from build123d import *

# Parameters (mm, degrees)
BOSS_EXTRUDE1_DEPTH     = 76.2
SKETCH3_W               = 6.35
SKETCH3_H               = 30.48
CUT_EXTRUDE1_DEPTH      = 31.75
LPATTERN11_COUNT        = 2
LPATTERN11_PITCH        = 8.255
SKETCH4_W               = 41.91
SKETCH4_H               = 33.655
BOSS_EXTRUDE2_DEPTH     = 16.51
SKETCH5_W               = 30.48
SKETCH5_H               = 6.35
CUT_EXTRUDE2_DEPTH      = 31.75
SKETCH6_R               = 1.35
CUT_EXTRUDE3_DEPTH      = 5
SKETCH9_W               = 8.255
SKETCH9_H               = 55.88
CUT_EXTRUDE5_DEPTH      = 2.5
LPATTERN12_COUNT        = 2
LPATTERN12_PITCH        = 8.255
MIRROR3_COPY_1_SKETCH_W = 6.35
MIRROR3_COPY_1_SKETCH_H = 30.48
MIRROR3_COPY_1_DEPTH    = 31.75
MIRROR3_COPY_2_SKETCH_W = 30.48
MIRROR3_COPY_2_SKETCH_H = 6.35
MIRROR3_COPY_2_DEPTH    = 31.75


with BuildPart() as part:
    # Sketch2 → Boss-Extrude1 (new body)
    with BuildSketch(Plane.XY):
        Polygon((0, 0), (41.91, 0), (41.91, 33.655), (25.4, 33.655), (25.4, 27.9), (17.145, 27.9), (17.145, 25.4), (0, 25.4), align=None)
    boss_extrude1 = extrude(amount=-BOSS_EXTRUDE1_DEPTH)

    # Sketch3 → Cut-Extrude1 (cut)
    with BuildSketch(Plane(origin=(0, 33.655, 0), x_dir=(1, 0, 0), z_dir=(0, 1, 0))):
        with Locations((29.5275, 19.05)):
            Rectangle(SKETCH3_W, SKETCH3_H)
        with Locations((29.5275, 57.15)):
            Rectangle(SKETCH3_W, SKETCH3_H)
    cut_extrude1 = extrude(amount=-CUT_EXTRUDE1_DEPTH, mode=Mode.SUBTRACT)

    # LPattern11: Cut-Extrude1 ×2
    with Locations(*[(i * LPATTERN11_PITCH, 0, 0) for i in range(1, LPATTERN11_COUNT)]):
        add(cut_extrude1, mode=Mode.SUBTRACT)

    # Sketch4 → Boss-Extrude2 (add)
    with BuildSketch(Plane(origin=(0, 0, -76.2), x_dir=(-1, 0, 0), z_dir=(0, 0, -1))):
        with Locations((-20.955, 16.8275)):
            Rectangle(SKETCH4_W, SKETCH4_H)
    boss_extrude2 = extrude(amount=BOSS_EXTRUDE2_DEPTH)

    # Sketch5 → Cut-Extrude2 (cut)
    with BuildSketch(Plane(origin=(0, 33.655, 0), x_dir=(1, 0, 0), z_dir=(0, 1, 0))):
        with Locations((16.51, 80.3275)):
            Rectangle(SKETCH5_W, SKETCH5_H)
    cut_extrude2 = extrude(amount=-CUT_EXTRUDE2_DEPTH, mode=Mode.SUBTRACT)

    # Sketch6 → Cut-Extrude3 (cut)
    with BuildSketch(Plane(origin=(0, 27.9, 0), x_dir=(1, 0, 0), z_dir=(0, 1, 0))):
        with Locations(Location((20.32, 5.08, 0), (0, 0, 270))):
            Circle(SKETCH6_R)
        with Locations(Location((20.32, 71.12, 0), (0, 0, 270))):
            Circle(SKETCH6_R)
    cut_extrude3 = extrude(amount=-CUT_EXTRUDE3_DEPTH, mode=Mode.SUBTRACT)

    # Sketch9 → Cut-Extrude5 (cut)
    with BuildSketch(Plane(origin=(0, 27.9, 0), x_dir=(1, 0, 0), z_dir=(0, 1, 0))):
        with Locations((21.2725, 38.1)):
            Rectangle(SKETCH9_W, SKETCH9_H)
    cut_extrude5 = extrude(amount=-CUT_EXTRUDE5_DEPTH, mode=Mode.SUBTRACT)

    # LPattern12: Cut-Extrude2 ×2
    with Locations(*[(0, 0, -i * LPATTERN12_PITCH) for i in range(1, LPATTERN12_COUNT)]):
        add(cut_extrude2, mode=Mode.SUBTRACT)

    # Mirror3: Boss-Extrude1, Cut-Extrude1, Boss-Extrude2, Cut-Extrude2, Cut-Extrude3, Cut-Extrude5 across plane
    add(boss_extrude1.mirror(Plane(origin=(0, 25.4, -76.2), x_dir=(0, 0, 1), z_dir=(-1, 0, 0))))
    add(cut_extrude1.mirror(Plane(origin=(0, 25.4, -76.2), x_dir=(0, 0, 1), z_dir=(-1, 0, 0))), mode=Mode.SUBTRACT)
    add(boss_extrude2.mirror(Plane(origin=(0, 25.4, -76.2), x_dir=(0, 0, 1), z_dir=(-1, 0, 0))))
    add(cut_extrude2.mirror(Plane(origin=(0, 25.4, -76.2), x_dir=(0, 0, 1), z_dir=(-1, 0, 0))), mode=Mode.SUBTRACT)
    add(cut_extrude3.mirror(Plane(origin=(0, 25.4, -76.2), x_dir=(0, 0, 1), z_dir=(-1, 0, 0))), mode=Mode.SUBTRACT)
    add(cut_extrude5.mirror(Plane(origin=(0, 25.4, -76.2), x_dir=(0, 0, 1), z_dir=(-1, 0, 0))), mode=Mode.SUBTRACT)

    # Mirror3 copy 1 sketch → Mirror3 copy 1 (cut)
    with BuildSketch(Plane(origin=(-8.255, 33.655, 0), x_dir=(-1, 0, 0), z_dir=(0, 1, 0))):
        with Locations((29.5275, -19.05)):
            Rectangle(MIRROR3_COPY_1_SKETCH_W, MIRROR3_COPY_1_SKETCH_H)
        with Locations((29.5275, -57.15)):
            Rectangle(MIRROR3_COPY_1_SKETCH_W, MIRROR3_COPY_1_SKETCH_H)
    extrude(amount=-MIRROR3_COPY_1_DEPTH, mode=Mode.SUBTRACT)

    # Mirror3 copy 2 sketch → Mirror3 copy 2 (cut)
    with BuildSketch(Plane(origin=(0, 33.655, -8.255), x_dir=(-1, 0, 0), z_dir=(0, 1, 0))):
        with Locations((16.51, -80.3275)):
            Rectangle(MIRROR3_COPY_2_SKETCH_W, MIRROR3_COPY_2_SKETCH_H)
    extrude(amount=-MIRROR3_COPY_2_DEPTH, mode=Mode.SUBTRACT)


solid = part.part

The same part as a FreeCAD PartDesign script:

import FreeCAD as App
import Part
import Sketcher
Q = App.Units.Quantity

doc = App.newDocument("Part")
body = doc.addObject("PartDesign::Body", "Body")

sketch1 = body.newObject("Sketcher::SketchObject", "Sketch")
sketch1.AttachmentSupport = (doc.getObject("XY_Plane"), [""])
sketch1.MapMode = "FlatFace"
sketch1.addGeometry([
    Part.LineSegment(App.Vector(0, 0, 0), App.Vector(41.9, 0, 0)),
    Part.LineSegment(App.Vector(41.9, 0, 0), App.Vector(41.9, 33.7, 0)),
    Part.LineSegment(App.Vector(41.9, 33.7, 0), App.Vector(25.4, 33.7, 0)),
    Part.LineSegment(App.Vector(25.4, 33.7, 0), App.Vector(25.4, 27.9, 0)),
    Part.LineSegment(App.Vector(25.4, 27.9, 0), App.Vector(17.1, 27.9, 0)),
    Part.LineSegment(App.Vector(17.1, 27.9, 0), App.Vector(17.1, 25.4, 0)),
    Part.LineSegment(App.Vector(17.1, 25.4, 0), App.Vector(0, 25.4, 0)),
    Part.LineSegment(App.Vector(0, 25.4, 0), App.Vector(0, 0, 0)),
], False)
sketch1.addConstraint([
    Sketcher.Constraint("Coincident", 0, 2, 1, 1),
    Sketcher.Constraint("Coincident", 1, 2, 2, 1),
    Sketcher.Constraint("Coincident", 2, 2, 3, 1),
    Sketcher.Constraint("Coincident", 3, 2, 4, 1),
    Sketcher.Constraint("Coincident", 4, 2, 5, 1),
    Sketcher.Constraint("Coincident", 5, 2, 6, 1),
    Sketcher.Constraint("Coincident", 6, 2, 7, 1),
    Sketcher.Constraint("Coincident", 7, 2, 0, 1),
    Sketcher.Constraint("Horizontal", 0),
    Sketcher.Constraint("Vertical", 1),
    Sketcher.Constraint("Horizontal", 2),
    Sketcher.Constraint("Vertical", 3),
    Sketcher.Constraint("Horizontal", 4),
    Sketcher.Constraint("Vertical", 5),
    Sketcher.Constraint("Horizontal", 6),
    Sketcher.Constraint("Vertical", 7),
    Sketcher.Constraint("Coincident", 7, 2, -1, 1),
    Sketcher.Constraint("DistanceY", 7, 2, 7, 1, Q("1 in")),
    Sketcher.Constraint("DistanceX", -1, 1, 2, 2, Q("1 in")),
    Sketcher.Constraint("DistanceX", 0, 1, 0, 2, Q("1.65 in")),
    Sketcher.Constraint("DistanceX", 4, 2, 4, 1, Q("0.325 in")),
    Sketcher.Constraint("DistanceY", 1, 1, 1, 2, Q("1.325 in")),
    Sketcher.Constraint("DistanceY", 3, 2, 3, 1, Q("5.755 mm")),
])
pad1 = body.newObject("PartDesign::Pad", "Pad")
pad1.Profile = sketch1
pad1.Length = Q("3 in")
pad1.Reversed = True

sketch2 = body.newObject("Sketcher::SketchObject", "Sketch001")
sketch2.AttachmentSupport = (doc.getObject("XZ_Plane"), [""])
sketch2.MapMode = "FlatFace"
sketch2.AttachmentOffset = App.Placement(App.Vector(0, 0, -1.325 * 25.4), App.Rotation())
sketch2.addGeometry([
    Part.LineSegment(App.Vector(26, -34, 0), App.Vector(26, -4, 0)),
    Part.LineSegment(App.Vector(26, -4, 0), App.Vector(33, -4, 0)),
    Part.LineSegment(App.Vector(33, -4, 0), App.Vector(33, -34, 0)),
    Part.LineSegment(App.Vector(33, -34, 0), App.Vector(26, -34, 0)),
    Part.LineSegment(App.Vector(26, -72, 0), App.Vector(26, -42, 0)),
    Part.LineSegment(App.Vector(26, -42, 0), App.Vector(33, -42, 0)),
    Part.LineSegment(App.Vector(33, -42, 0), App.Vector(33, -72, 0)),
    Part.LineSegment(App.Vector(33, -72, 0), App.Vector(26, -72, 0)),
], False)
sketch2.addConstraint([
    Sketcher.Constraint("Coincident", 0, 2, 1, 1),
    Sketcher.Constraint("Coincident", 1, 2, 2, 1),
    Sketcher.Constraint("Coincident", 2, 2, 3, 1),
    Sketcher.Constraint("Coincident", 3, 2, 0, 1),
    Sketcher.Constraint("Coincident", 4, 2, 5, 1),
    Sketcher.Constraint("Coincident", 5, 2, 6, 1),
    Sketcher.Constraint("Coincident", 6, 2, 7, 1),
    Sketcher.Constraint("Coincident", 7, 2, 4, 1),
    Sketcher.Constraint("Vertical", 0),
    Sketcher.Constraint("Horizontal", 1),
    Sketcher.Constraint("Vertical", 2),
    Sketcher.Constraint("Horizontal", 3),
    Sketcher.Constraint("Vertical", 4),
    Sketcher.Constraint("Horizontal", 5),
    Sketcher.Constraint("Vertical", 6),
    Sketcher.Constraint("Horizontal", 7),
    Sketcher.Constraint("Vertical", 3, 2, 4, 2),
    Sketcher.Constraint("Vertical", 2, 2, 5, 2),
    Sketcher.Constraint("Equal", 2, 4),
    Sketcher.Constraint("DistanceY", 0, 1, 0, 2, Q("1.2 in")),
    Sketcher.Constraint("DistanceX", 1, 1, 1, 2, Q("0.25 in")),
    Sketcher.Constraint("DistanceY", 4, 2, 3, 2, Q("0.3 in")),
    Sketcher.Constraint("DistanceY", 0, 2, -1, 1, Q("0.15 in")),
    Sketcher.Constraint("DistanceX", -1, 1, 0, 2, Q("1.0375 in")),
])
pocket1 = body.newObject("PartDesign::Pocket", "Pocket")
pocket1.Profile = sketch2
pocket1.Length = Q("1.25 in")
pocket1.Reversed = True
doc.recompute()

linearpattern = body.newObject("PartDesign::LinearPattern", "LinearPattern")
linearpattern.Originals = [pocket1]
linearpattern.Direction = (doc.getObject("X_Axis"), [""])
linearpattern.Mode = "offset"
linearpattern.Offset = Q("0.325 in")
linearpattern.Occurrences = 2
body.Tip = linearpattern

sketch3 = body.newObject("Sketcher::SketchObject", "Sketch002")
sketch3.AttachmentSupport = (doc.getObject("XY_Plane"), [""])
sketch3.MapMode = "FlatFace"
sketch3.AttachmentOffset = App.Placement(App.Vector(0, 0, -3 * 25.4), App.Rotation())
sketch3.addGeometry([
    Part.LineSegment(App.Vector(42, 34, 0), App.Vector(42, 0, 0)),
    Part.LineSegment(App.Vector(42, 0, 0), App.Vector(0, 0, 0)),
    Part.LineSegment(App.Vector(0, 0, 0), App.Vector(0, 34, 0)),
    Part.LineSegment(App.Vector(0, 34, 0), App.Vector(42, 34, 0)),
], False)
sketch3.addConstraint([
    Sketcher.Constraint("Coincident", 0, 2, 1, 1),
    Sketcher.Constraint("Coincident", 1, 2, 2, 1),
    Sketcher.Constraint("Coincident", 2, 2, 3, 1),
    Sketcher.Constraint("Coincident", 3, 2, 0, 1),
    Sketcher.Constraint("Vertical", 0),
    Sketcher.Constraint("Horizontal", 1),
    Sketcher.Constraint("Vertical", 2),
    Sketcher.Constraint("Horizontal", 3),
    Sketcher.Constraint("Coincident", 1, 2, -1, 1),
    Sketcher.Constraint("DistanceX", 1, 2, 1, 1, Q("1.65 in")),
    Sketcher.Constraint("DistanceY", 0, 2, 0, 1, Q("1.325 in")),
])
pad2 = body.newObject("PartDesign::Pad", "Pad001")
pad2.Profile = sketch3
pad2.Length = Q("0.65 in")
pad2.Reversed = True

sketch4 = body.newObject("Sketcher::SketchObject", "Sketch003")
sketch4.AttachmentSupport = (doc.getObject("XZ_Plane"), [""])
sketch4.MapMode = "FlatFace"
sketch4.AttachmentOffset = App.Placement(App.Vector(0, 0, -1.325 * 25.4), App.Rotation())
sketch4.addGeometry([
    Part.LineSegment(App.Vector(1, -84, 0), App.Vector(1, -77, 0)),
    Part.LineSegment(App.Vector(1, -77, 0), App.Vector(32, -77, 0)),
    Part.LineSegment(App.Vector(32, -77, 0), App.Vector(32, -84, 0)),
    Part.LineSegment(App.Vector(32, -84, 0), App.Vector(1, -84, 0)),
], False)
sketch4.addConstraint([
    Sketcher.Constraint("Coincident", 0, 2, 1, 1),
    Sketcher.Constraint("Coincident", 1, 2, 2, 1),
    Sketcher.Constraint("Coincident", 2, 2, 3, 1),
    Sketcher.Constraint("Coincident", 3, 2, 0, 1),
    Sketcher.Constraint("Vertical", 0),
    Sketcher.Constraint("Horizontal", 1),
    Sketcher.Constraint("Vertical", 2),
    Sketcher.Constraint("Horizontal", 3),
    Sketcher.Constraint("DistanceX", 1, 1, 1, 2, Q("1.2 in")),
    Sketcher.Constraint("DistanceY", 0, 1, 0, 2, Q("0.25 in")),
    Sketcher.Constraint("DistanceX", -1, 1, 0, 2, Q("0.05 in")),
    Sketcher.Constraint("DistanceY", 0, 2, -1, 1, Q("3.0375 in")),
])
pocket2 = body.newObject("PartDesign::Pocket", "Pocket001")
pocket2.Profile = sketch4
pocket2.Length = Q("1.25 in")
pocket2.Reversed = True

sketch5 = body.newObject("Sketcher::SketchObject", "Sketch004")
sketch5.AttachmentSupport = (doc.getObject("XZ_Plane"), [""])
sketch5.MapMode = "FlatFace"
sketch5.AttachmentOffset = App.Placement(App.Vector(0, 0, -27.9), App.Rotation())
sketch5.addGeometry([
    Part.Circle(App.Vector(20.3, -5.1, 0), App.Vector(0, 0, 1), 1.4),
    Part.Circle(App.Vector(20.3, -71.1, 0), App.Vector(0, 0, 1), 1.4),
], False)
sketch5.addConstraint([
    Sketcher.Constraint("Equal", 0, 1),
    Sketcher.Constraint("Vertical", 0, 3, 1, 3),
    Sketcher.Constraint("DistanceX", -1, 1, 0, 3, Q("0.8 in")),
    Sketcher.Constraint("DistanceY", 0, 3, -1, 1, Q("0.2 in")),
    Sketcher.Constraint("DistanceY", 1, 3, -1, 1, Q("2.8 in")),
    Sketcher.Constraint("Diameter", 0, Q("2.7 mm")),
])
pocket3 = body.newObject("PartDesign::Pocket", "Pocket002")
pocket3.Profile = sketch5
pocket3.Length = 5
pocket3.Reversed = True

sketch6 = body.newObject("Sketcher::SketchObject", "Sketch005")
sketch6.AttachmentSupport = (doc.getObject("XZ_Plane"), [""])
sketch6.MapMode = "FlatFace"
sketch6.AttachmentOffset = App.Placement(App.Vector(0, 0, -27.9), App.Rotation())
sketch6.addGeometry([
    Part.LineSegment(App.Vector(17, -66, 0), App.Vector(17, -10, 0)),
    Part.LineSegment(App.Vector(17, -10, 0), App.Vector(25, -10, 0)),
    Part.LineSegment(App.Vector(25, -10, 0), App.Vector(25, -66, 0)),
    Part.LineSegment(App.Vector(25, -66, 0), App.Vector(17, -66, 0)),
], False)
sketch6.addConstraint([
    Sketcher.Constraint("Coincident", 0, 2, 1, 1),
    Sketcher.Constraint("Coincident", 1, 2, 2, 1),
    Sketcher.Constraint("Coincident", 2, 2, 3, 1),
    Sketcher.Constraint("Coincident", 3, 2, 0, 1),
    Sketcher.Constraint("Vertical", 0),
    Sketcher.Constraint("Horizontal", 1),
    Sketcher.Constraint("Vertical", 2),
    Sketcher.Constraint("Horizontal", 3),
    Sketcher.Constraint("DistanceY", 0, 1, 0, 2, Q("2.2 in")),
    Sketcher.Constraint("DistanceX", -1, 1, 1, 2, Q("1 in")),
    Sketcher.Constraint("DistanceY", 0, 2, -1, 1, Q("0.4 in")),
    Sketcher.Constraint("DistanceX", 1, 1, 1, 2, Q("0.325 in")),
])
pocket4 = body.newObject("PartDesign::Pocket", "Pocket003")
pocket4.Profile = sketch6
pocket4.Length = 2.5
pocket4.Reversed = True
doc.recompute()

linearpattern2 = body.newObject("PartDesign::LinearPattern", "LinearPattern001")
linearpattern2.Originals = [pocket2]
linearpattern2.Direction = (doc.getObject("Z_Axis"), [""])
linearpattern2.Mode = "offset"
linearpattern2.Offset = Q("0.325 in")
linearpattern2.Occurrences = 2
linearpattern2.Reversed = True
body.Tip = linearpattern2
doc.recompute()

mirrored = body.newObject("PartDesign::Mirrored", "Mirrored")
mirrored.Originals = [pad1, pocket1, pad2, pocket2, pocket3, pocket4]
mirrored.MirrorPlane = (doc.getObject("YZ_Plane"), [""])
body.Tip = mirrored

sketch7 = body.newObject("Sketcher::SketchObject", "Sketch006")
sketch7.AttachmentSupport = (doc.getObject("XZ_Plane"), [""])
sketch7.MapMode = "FlatFace"
sketch7.AttachmentOffset = App.Placement(App.Vector(0, 0, -1.325 * 25.4), App.Rotation())
sketch7.addGeometry([
    Part.LineSegment(App.Vector(-35, -4, 0), App.Vector(-35, -34, 0)),
    Part.LineSegment(App.Vector(-35, -34, 0), App.Vector(-41, -34, 0)),
    Part.LineSegment(App.Vector(-41, -34, 0), App.Vector(-41, -4, 0)),
    Part.LineSegment(App.Vector(-41, -4, 0), App.Vector(-35, -4, 0)),
    Part.LineSegment(App.Vector(-35, -42, 0), App.Vector(-35, -72, 0)),
    Part.LineSegment(App.Vector(-35, -72, 0), App.Vector(-41, -72, 0)),
    Part.LineSegment(App.Vector(-41, -72, 0), App.Vector(-41, -42, 0)),
    Part.LineSegment(App.Vector(-41, -42, 0), App.Vector(-35, -42, 0)),
], False)
sketch7.addConstraint([
    Sketcher.Constraint("Coincident", 0, 2, 1, 1),
    Sketcher.Constraint("Coincident", 1, 2, 2, 1),
    Sketcher.Constraint("Coincident", 2, 2, 3, 1),
    Sketcher.Constraint("Coincident", 3, 2, 0, 1),
    Sketcher.Constraint("Coincident", 4, 2, 5, 1),
    Sketcher.Constraint("Coincident", 5, 2, 6, 1),
    Sketcher.Constraint("Coincident", 6, 2, 7, 1),
    Sketcher.Constraint("Coincident", 7, 2, 4, 1),
    Sketcher.Constraint("Vertical", 0),
    Sketcher.Constraint("Horizontal", 1),
    Sketcher.Constraint("Vertical", 2),
    Sketcher.Constraint("Horizontal", 3),
    Sketcher.Constraint("Vertical", 4),
    Sketcher.Constraint("Horizontal", 5),
    Sketcher.Constraint("Vertical", 6),
    Sketcher.Constraint("Horizontal", 7),
    Sketcher.Constraint("Vertical", 3, 2, 4, 2),
    Sketcher.Constraint("Vertical", 2, 2, 5, 2),
    Sketcher.Constraint("Equal", 2, 4),
    Sketcher.Constraint("DistanceY", 0, 2, 0, 1, Q("1.2 in")),
    Sketcher.Constraint("DistanceX", 1, 2, 1, 1, Q("0.25 in")),
    Sketcher.Constraint("DistanceY", 4, 2, 0, 2, Q("1.5 in")),
    Sketcher.Constraint("DistanceY", 0, 2, -1, 1, Q("1.35 in")),
    Sketcher.Constraint("DistanceX", 0, 2, -1, 1, Q("1.3625 in")),
])
pocket5 = body.newObject("PartDesign::Pocket", "Pocket004")
pocket5.Profile = sketch7
pocket5.Length = Q("1.25 in")
pocket5.Reversed = True

sketch8 = body.newObject("Sketcher::SketchObject", "Sketch007")
sketch8.AttachmentSupport = (doc.getObject("XZ_Plane"), [""])
sketch8.MapMode = "FlatFace"
sketch8.AttachmentOffset = App.Placement(App.Vector(0, 0, -1.325 * 25.4), App.Rotation())
sketch8.addGeometry([
    Part.LineSegment(App.Vector(-1, -85, 0), App.Vector(-1, -92, 0)),
    Part.LineSegment(App.Vector(-1, -92, 0), App.Vector(-32, -92, 0)),
    Part.LineSegment(App.Vector(-32, -92, 0), App.Vector(-32, -85, 0)),
    Part.LineSegment(App.Vector(-32, -85, 0), App.Vector(-1, -85, 0)),
], False)
sketch8.addConstraint([
    Sketcher.Constraint("Coincident", 0, 2, 1, 1),
    Sketcher.Constraint("Coincident", 1, 2, 2, 1),
    Sketcher.Constraint("Coincident", 2, 2, 3, 1),
    Sketcher.Constraint("Coincident", 3, 2, 0, 1),
    Sketcher.Constraint("Vertical", 0),
    Sketcher.Constraint("Horizontal", 1),
    Sketcher.Constraint("Vertical", 2),
    Sketcher.Constraint("Horizontal", 3),
    Sketcher.Constraint("DistanceX", 1, 2, 1, 1, Q("1.2 in")),
    Sketcher.Constraint("DistanceY", 0, 2, 0, 1, Q("0.25 in")),
    Sketcher.Constraint("DistanceX", 0, 2, -1, 1, Q("0.05 in")),
    Sketcher.Constraint("DistanceY", 0, 2, -1, 1, Q("3.6125 in")),
])
pocket6 = body.newObject("PartDesign::Pocket", "Pocket005")
pocket6.Profile = sketch8
pocket6.Length = Q("1.25 in")
pocket6.Reversed = True

doc.recompute()
